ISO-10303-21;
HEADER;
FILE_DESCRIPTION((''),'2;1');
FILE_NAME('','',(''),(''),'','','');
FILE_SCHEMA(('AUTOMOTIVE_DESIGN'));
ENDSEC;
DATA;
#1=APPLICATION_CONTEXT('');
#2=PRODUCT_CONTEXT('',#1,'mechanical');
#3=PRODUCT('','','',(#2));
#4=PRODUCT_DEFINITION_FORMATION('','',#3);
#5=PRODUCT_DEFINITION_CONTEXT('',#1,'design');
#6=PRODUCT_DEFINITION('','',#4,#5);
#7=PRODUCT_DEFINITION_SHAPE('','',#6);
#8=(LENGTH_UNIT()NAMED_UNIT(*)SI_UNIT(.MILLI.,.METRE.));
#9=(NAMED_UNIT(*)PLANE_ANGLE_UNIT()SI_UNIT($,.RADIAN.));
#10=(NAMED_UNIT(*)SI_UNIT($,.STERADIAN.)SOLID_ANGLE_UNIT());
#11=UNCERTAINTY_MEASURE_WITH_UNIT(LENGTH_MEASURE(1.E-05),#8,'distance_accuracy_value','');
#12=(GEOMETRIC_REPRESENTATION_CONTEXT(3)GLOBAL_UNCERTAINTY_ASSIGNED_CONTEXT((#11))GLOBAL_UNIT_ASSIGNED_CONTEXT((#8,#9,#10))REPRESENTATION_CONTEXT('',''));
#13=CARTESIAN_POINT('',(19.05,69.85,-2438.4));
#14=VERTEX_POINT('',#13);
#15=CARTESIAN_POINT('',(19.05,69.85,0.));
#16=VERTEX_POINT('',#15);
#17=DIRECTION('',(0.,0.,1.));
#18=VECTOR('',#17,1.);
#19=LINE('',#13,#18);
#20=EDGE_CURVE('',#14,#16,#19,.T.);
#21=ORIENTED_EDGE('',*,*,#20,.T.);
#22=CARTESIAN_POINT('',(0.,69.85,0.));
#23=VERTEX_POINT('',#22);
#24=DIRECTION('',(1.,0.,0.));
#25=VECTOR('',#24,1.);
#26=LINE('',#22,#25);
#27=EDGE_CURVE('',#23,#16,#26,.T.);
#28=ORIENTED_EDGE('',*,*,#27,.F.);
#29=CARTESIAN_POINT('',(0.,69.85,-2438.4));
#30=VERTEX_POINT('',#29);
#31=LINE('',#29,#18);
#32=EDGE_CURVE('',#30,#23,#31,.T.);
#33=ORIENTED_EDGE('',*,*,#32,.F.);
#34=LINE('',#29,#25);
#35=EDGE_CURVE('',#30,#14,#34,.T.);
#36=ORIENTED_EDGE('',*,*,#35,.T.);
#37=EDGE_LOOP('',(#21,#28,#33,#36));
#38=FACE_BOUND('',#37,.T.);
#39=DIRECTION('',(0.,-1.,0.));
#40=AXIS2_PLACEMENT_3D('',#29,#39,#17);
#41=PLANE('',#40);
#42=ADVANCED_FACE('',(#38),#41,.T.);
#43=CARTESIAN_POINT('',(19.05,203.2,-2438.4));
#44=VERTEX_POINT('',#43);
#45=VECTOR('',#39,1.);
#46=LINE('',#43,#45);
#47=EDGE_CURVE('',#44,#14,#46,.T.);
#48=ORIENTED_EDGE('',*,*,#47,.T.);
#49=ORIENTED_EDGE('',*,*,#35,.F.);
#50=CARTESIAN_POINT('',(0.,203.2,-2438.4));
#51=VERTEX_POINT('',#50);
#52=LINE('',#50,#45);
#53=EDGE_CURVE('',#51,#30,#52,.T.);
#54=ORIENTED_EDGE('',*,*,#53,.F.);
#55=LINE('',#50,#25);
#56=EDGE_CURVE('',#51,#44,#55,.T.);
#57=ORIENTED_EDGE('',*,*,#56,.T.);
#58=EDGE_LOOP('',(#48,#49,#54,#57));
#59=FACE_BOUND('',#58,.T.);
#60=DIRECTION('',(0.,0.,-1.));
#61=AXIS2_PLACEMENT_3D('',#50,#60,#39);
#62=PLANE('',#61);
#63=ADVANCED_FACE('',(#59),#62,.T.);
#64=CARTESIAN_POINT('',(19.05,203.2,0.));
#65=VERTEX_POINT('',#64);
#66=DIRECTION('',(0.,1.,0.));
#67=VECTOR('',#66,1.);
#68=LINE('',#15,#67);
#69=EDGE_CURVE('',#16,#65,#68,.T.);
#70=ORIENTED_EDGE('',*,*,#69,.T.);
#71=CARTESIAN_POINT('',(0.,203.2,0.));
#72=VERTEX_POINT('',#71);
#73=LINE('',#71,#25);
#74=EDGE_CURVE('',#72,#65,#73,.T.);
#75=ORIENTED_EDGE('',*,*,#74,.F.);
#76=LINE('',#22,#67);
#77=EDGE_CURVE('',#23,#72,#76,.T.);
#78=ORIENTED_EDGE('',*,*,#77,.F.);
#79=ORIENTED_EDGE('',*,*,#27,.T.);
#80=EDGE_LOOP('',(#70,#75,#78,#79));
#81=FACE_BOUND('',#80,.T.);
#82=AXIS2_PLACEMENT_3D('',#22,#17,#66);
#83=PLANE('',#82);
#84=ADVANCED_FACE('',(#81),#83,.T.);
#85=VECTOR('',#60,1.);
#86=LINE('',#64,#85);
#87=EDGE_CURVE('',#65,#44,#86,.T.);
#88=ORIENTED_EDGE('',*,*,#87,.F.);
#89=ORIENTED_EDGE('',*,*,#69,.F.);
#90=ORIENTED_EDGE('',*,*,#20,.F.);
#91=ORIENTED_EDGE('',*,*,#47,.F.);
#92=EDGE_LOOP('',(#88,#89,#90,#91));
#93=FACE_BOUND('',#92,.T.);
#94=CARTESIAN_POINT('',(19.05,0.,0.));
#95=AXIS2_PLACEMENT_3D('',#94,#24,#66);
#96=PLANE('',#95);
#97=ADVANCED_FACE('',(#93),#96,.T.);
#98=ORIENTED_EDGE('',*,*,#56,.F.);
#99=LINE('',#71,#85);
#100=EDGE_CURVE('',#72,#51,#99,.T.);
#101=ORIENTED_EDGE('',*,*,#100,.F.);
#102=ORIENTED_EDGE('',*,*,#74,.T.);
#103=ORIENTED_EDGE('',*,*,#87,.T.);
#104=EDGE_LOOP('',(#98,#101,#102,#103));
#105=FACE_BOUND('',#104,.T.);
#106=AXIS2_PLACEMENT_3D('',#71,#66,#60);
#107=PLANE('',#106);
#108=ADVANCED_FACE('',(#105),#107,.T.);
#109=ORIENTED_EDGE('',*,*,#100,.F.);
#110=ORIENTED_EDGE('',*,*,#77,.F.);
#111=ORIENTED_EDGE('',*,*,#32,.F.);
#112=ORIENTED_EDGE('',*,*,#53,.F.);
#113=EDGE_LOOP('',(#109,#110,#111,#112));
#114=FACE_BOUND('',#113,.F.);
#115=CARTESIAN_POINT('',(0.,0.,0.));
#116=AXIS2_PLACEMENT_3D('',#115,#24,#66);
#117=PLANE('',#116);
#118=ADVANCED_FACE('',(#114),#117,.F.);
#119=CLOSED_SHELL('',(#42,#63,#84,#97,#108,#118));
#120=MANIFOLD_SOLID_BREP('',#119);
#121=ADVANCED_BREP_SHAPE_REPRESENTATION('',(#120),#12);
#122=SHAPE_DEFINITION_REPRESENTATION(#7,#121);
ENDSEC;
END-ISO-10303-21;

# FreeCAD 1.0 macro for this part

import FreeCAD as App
import Part
import Sketcher
Q = App.Units.Quantity

doc = App.newDocument("Part")
body = doc.addObject("PartDesign::Body", "Body")

# Sketch on YZ plane
sketch1 = body.newObject("Sketcher::SketchObject", "Sketch")
sketch1.AttachmentSupport = (doc.getObject("YZ_Plane"), [""])
sketch1.MapMode = "FlatFace"
sketch1.addGeometry([
    Part.LineSegment(App.Vector(203, 0, 0), App.Vector(70, 0, 0)),
    Part.LineSegment(App.Vector(70, 0, 0), App.Vector(70, -2438, 0)),
    Part.LineSegment(App.Vector(70, -2438, 0), App.Vector(203, -2438, 0)),
    Part.LineSegment(App.Vector(203, -2438, 0), App.Vector(203, 0, 0)),
], False)
sketch1.addConstraint([
    Sketcher.Constraint("Coincident", 0, 2, 1, 1),
    Sketcher.Constraint("Coincident", 1, 2, 2, 1),
    Sketcher.Constraint("Coincident", 2, 2, 3, 1),
    Sketcher.Constraint("Coincident", 3, 2, 0, 1),
    Sketcher.Constraint("Horizontal", 0),
    Sketcher.Constraint("Vertical", 1),
    Sketcher.Constraint("Horizontal", 2),
    Sketcher.Constraint("Vertical", 3),
    Sketcher.Constraint("PointOnObject", 0, 2, -1),
    Sketcher.Constraint("DistanceY", 1, 2, 1, 1, Q("96 in")),
    Sketcher.Constraint("DistanceX", 0, 2, 0, 1, Q("5.25 in")),
    Sketcher.Constraint("DistanceX", -1, 1, 2, 2, Q("8 in")),
])
pad1 = body.newObject("PartDesign::Pad", "Pad")
pad1.Profile = sketch1
pad1.Length = Q("0.75 in")

doc.recompute()
